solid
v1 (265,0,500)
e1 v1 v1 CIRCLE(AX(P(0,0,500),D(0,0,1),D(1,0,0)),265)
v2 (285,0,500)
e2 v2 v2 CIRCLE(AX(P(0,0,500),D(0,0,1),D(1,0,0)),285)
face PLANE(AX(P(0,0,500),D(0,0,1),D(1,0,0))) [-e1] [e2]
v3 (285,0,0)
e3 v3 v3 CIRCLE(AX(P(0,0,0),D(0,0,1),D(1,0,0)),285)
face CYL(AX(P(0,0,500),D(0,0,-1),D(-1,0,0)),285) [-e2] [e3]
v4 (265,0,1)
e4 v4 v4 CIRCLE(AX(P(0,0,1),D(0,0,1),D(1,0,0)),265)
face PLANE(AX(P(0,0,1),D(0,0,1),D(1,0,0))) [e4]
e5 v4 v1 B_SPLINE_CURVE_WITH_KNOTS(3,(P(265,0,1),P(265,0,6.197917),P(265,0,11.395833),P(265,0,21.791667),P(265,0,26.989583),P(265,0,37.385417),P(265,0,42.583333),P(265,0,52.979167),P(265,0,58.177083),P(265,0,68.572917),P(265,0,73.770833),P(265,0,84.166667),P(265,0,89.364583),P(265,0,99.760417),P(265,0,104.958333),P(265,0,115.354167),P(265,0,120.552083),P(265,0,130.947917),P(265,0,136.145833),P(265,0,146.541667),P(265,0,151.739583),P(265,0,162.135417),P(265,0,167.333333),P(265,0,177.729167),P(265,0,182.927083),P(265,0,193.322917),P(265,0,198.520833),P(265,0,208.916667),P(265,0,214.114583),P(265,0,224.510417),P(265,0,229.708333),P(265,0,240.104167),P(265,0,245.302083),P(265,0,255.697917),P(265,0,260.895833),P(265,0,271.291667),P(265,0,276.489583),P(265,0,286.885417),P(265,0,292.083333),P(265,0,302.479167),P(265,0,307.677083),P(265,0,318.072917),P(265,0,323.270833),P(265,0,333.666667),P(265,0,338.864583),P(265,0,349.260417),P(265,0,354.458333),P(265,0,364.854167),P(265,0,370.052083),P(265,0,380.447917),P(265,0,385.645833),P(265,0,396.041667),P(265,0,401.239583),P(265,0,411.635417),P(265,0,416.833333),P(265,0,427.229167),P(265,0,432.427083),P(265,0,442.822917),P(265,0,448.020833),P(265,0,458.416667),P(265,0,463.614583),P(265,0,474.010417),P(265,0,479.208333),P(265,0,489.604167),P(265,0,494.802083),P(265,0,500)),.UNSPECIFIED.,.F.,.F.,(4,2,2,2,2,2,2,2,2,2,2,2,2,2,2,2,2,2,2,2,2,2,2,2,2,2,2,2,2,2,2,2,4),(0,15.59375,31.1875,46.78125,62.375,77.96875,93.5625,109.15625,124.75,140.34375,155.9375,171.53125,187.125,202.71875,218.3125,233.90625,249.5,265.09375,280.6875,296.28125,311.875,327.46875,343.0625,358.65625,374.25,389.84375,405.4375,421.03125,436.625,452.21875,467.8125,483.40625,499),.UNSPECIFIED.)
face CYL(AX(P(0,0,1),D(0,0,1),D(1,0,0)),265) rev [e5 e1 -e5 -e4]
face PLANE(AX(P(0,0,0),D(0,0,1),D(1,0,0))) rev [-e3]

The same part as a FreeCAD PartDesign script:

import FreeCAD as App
import Part
import Sketcher
from FreeCAD import Vector
Q = App.Units.Quantity

doc = App.newDocument("Part")
params = doc.addObject("Spreadsheet::Sheet", "Params")
for row, (alias, value) in enumerate([
    ("sketch1_diameter", "570 mm"),
    ("pad1_length", "500 mm"),
    ("sketch2_diameter", "530 mm"),
    ("pocket1_length", "499 mm"),
], start=1):
    params.set(f"A{row}", alias)
    params.set(f"B{row}", "=" + value)
    params.setAlias(f"B{row}", alias)

body = doc.addObject("PartDesign::Body", "Body")

# Sketch on XY plane
sketch1 = body.newObject("Sketcher::SketchObject", "Sketch")
sketch1.AttachmentSupport = (doc.getObject("XY_Plane"), [""])
sketch1.MapMode = "FlatFace"
sketch1.addGeometry(Part.Circle(Vector(0, 0, 0), Vector(0, 0, 1), 285), False)
sketch1.addConstraint(Sketcher.Constraint("Coincident", 0, 3, -1, 1))
sketch1.addConstraint(Sketcher.Constraint("Diameter", 0, Q("570 mm")))
sketch1.setExpression("Constraints[1]", "Params.sketch1_diameter")
pad1 = body.newObject("PartDesign::Pad", "Pad")
pad1.Profile = sketch1
pad1.setExpression("Length", "Params.pad1_length")

# Sketch on XY plane
sketch2 = body.newObject("Sketcher::SketchObject", "Sketch001")
sketch2.AttachmentSupport = (doc.getObject("XY_Plane"), [""])
sketch2.MapMode = "FlatFace"
sketch2.AttachmentOffset = App.Placement(Vector(0, 0, 500), App.Rotation())
sketch2.addGeometry(Part.Circle(Vector(0, 0, 0), Vector(0, 0, 1), 265), False)
sketch2.addConstraint(Sketcher.Constraint("Coincident", 0, 3, -1, 1))
sketch2.addConstraint(Sketcher.Constraint("Diameter", 0, Q("530 mm")))
sketch2.setExpression("Constraints[1]", "Params.sketch2_diameter")
pocket1 = body.newObject("PartDesign::Pocket", "Pocket")
pocket1.Profile = sketch2
pocket1.setExpression("Length", "Params.pocket1_length")

doc.recompute()
